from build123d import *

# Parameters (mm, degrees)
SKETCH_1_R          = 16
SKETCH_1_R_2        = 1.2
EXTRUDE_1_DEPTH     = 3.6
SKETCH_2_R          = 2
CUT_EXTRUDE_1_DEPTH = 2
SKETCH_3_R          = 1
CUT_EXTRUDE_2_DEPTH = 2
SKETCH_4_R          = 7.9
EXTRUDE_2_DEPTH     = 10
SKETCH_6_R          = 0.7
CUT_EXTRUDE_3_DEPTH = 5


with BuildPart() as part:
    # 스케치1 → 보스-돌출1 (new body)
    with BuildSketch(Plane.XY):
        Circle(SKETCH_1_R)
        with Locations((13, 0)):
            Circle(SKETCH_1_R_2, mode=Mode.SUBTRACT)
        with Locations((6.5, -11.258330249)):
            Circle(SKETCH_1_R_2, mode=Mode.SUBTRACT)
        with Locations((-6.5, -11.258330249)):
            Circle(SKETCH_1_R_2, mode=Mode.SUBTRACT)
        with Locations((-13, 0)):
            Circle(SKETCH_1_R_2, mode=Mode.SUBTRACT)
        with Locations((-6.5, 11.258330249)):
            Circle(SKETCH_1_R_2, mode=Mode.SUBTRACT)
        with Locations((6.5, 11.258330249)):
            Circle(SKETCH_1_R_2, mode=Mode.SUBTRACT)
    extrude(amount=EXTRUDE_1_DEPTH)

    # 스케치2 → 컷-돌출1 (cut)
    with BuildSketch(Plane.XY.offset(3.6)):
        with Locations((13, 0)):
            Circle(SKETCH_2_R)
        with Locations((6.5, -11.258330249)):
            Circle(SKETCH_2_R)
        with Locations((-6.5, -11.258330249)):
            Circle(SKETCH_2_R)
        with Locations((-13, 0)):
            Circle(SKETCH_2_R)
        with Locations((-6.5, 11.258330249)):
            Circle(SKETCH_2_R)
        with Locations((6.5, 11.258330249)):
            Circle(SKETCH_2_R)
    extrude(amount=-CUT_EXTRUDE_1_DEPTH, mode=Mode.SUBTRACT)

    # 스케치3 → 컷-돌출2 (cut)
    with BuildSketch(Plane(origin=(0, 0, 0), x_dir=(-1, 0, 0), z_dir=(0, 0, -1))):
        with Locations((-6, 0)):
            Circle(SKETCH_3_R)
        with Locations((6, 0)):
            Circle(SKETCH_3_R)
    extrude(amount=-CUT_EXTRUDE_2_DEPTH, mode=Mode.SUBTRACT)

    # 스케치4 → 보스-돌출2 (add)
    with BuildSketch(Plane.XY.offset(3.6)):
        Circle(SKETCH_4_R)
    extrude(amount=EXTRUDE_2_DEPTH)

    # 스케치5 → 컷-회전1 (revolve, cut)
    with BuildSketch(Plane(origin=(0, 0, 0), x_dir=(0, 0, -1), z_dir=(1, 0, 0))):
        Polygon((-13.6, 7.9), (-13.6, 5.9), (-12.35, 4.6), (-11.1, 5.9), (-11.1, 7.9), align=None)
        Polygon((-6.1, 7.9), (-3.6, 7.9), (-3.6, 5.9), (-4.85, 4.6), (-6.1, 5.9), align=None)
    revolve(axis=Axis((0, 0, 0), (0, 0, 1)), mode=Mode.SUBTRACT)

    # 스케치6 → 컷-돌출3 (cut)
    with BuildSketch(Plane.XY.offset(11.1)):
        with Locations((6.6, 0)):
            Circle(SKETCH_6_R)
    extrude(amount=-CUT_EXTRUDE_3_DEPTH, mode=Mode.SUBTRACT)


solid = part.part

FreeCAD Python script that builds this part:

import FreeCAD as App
import Part
import Sketcher

V = App.Vector


def add_polygon(sketch, points):
    """Adds a closed chain of lines whose ends are joined by coincident constraints."""
    first, n = sketch.GeometryCount, len(points)
    for a, b in zip(points, points[1:] + points[:1]):
        sketch.addGeometry(Part.LineSegment(App.Vector(*a, 0), App.Vector(*b, 0)), False)
    for i in range(n):
        sketch.addConstraint(Sketcher.Constraint("Coincident", first + i, 2, first + (i + 1) % n, 1))

doc = App.newDocument("Part")
body = doc.addObject("PartDesign::Body", "Body")

# Sketch on XY plane
sketch1 = body.newObject("Sketcher::SketchObject", "Sketch")
sketch1.AttachmentSupport = (doc.getObject("XY_Plane"), [""])
sketch1.MapMode = "FlatFace"
sketch1.addGeometry([
    Part.Circle(V(0, 0, 0), V(0, 0, 1), 16),  # 0
    Part.Circle(V(-6.5, -11.3, 0), V(0, 0, 1), 1.2),  # 1
    Part.Circle(V(6.5, -11.3, 0), V(0, 0, 1), 1.2),  # 2
    Part.Circle(V(-13, 0, 0), V(0, 0, 1), 1.2),  # 3
    Part.Circle(V(-6.5, 11.3, 0), V(0, 0, 1), 1.2),  # 4
    Part.Circle(V(13, 0, 0), V(0, 0, 1), 1.2),  # 5
    Part.Circle(V(6.5, 11.3, 0), V(0, 0, 1), 1.2),  # 6
], False)
sketch1.addConstraint([
    Sketcher.Constraint("Coincident", 0, 3, -1, 1),
    Sketcher.Constraint("Equal", 1, 2),
    Sketcher.Constraint("Equal", 2, 3),
    Sketcher.Constraint("Equal", 3, 4),
    Sketcher.Constraint("Equal", 4, 5),
    Sketcher.Constraint("Equal", 5, 6),
    Sketcher.Constraint("Symmetric", 2, 3, 4, 3, -1, 1),
    Sketcher.Constraint("Symmetric", 3, 3, 5, 3, -1, 1),
    Sketcher.Constraint("Symmetric", 1, 3, 6, 3, -1, 1),
    Sketcher.Constraint("Symmetric", 1, 3, 2, 3, -2),
    Sketcher.Constraint("PointOnObject", 3, 3, -1),
    Sketcher.Constraint("Diameter", 0, 32.0),
    Sketcher.Constraint("Diameter", 1, 2.4),
    Sketcher.Constraint("DistanceX", 3, 3, -1, 1, 13.0),
    Sketcher.Constraint("DistanceX", 1, 3, 2, 3, 13.0),
    Sketcher.Constraint("DistanceY", 1, 3, -1, 1, 11.25833),
])
pad1 = body.newObject("PartDesign::Pad", "Pad")
pad1.Profile = sketch1
pad1.Length = 3.6

# Sketch on XY plane
sketch2 = body.newObject("Sketcher::SketchObject", "Sketch001")
sketch2.AttachmentSupport = (doc.getObject("XY_Plane"), [""])
sketch2.MapMode = "FlatFace"
sketch2.AttachmentOffset = App.Placement(V(0, 0, 3.6), App.Rotation())
sketch2.addGeometry([
    Part.Circle(V(13, 0, 0), V(0, 0, 1), 2),  # 0
    Part.Circle(V(6.5, -11.3, 0), V(0, 0, 1), 2),  # 1
    Part.Circle(V(-6.5, -11.3, 0), V(0, 0, 1), 2),  # 2
    Part.Circle(V(-13, 0, 0), V(0, 0, 1), 2),  # 3
    Part.Circle(V(-6.5, 11.3, 0), V(0, 0, 1), 2),  # 4
    Part.Circle(V(6.5, 11.3, 0), V(0, 0, 1), 2),  # 5
], False)
sketch2.addConstraint([
    Sketcher.Constraint("Equal", 0, 1),
    Sketcher.Constraint("Equal", 1, 2),
    Sketcher.Constraint("Equal", 2, 3),
    Sketcher.Constraint("Equal", 3, 4),
    Sketcher.Constraint("Equal", 4, 5),
    Sketcher.Constraint("Symmetric", 0, 3, 3, 3, -1, 1),
    Sketcher.Constraint("Symmetric", 1, 3, 4, 3, -1, 1),
    Sketcher.Constraint("Symmetric", 2, 3, 5, 3, -1, 1),
    Sketcher.Constraint("Symmetric", 1, 3, 2, 3, -2),
    Sketcher.Constraint("PointOnObject", 0, 3, -1),
    Sketcher.Constraint("Diameter", 0, 4.0),
    Sketcher.Constraint("DistanceX", -1, 1, 0, 3, 13.0),
    Sketcher.Constraint("DistanceX", 2, 3, 1, 3, 13.0),
    Sketcher.Constraint("DistanceY", 1, 3, -1, 1, 11.25833),
])
pocket1 = body.newObject("PartDesign::Pocket", "Pocket")
pocket1.Profile = sketch2
pocket1.Length = 2

# Sketch on XY plane
sketch3 = body.newObject("Sketcher::SketchObject", "Sketch002")
sketch3.AttachmentSupport = (doc.getObject("XY_Plane"), [""])
sketch3.MapMode = "FlatFace"
sketch3.addGeometry([
    Part.Circle(V(6, 0, 0), V(0, 0, 1), 1),
    Part.Circle(V(-6, 0, 0), V(0, 0, 1), 1),
], False)
sketch3.addConstraint([
    Sketcher.Constraint("Equal", 0, 1),
    Sketcher.Constraint("Symmetric", 0, 3, 1, 3, -1, 1),
    Sketcher.Constraint("PointOnObject", 0, 3, -1),
    Sketcher.Constraint("Diameter", 0, 2.0),
    Sketcher.Constraint("DistanceX", -1, 1, 0, 3, 6.0),
])
pocket2 = body.newObject("PartDesign::Pocket", "Pocket001")
pocket2.Profile = sketch3
pocket2.Length = 2
pocket2.Reversed = True

# Sketch on XY plane
sketch4 = body.newObject("Sketcher::SketchObject", "Sketch003")
sketch4.AttachmentSupport = (doc.getObject("XY_Plane"), [""])
sketch4.MapMode = "FlatFace"
sketch4.AttachmentOffset = App.Placement(V(0, 0, 3.6), App.Rotation())
sketch4.addGeometry(Part.Circle(V(0, 0, 0), V(0, 0, 1), 8), False)
sketch4.addConstraint([
    Sketcher.Constraint("Coincident", 0, 3, -1, 1),
    Sketcher.Constraint("Diameter", 0, 15.8),
])
pad2 = body.newObject("PartDesign::Pad", "Pad001")
pad2.Profile = sketch4
pad2.Length = 10

# Sketch on YZ plane
sketch5 = body.newObject("Sketcher::SketchObject", "Sketch004")
sketch5.AttachmentSupport = (doc.getObject("YZ_Plane"), [""])
sketch5.MapMode = "FlatFace"
add_polygon(sketch5, [(7.9, 13.6), (5.9, 13.6), (4.6, 12.3), (5.9, 11.1), (7.9, 11.1)])  # lines 0-4
add_polygon(sketch5, [(7.9, 3.6), (7.9, 6.1), (5.9, 6.1), (4.6, 4.8), (5.9, 3.6)])  # lines 5-9
sketch5.addConstraint([
    Sketcher.Constraint("Horizontal", 0),
    Sketcher.Constraint("Horizontal", 3),
    Sketcher.Constraint("Vertical", 4),
    Sketcher.Constraint("Vertical", 5),
    Sketcher.Constraint("Horizontal", 6),
    Sketcher.Constraint("Horizontal", 9),
    Sketcher.Constraint("Parallel", 1, 7),
    Sketcher.Constraint("Parallel", 2, 8),
    Sketcher.Constraint("Vertical", 0, 2, 2, 2),
    Sketcher.Constraint("Vertical", 4, 2, 5, 2),
    Sketcher.Constraint("Vertical", 2, 2, 6, 2),
    Sketcher.Constraint("Vertical", 1, 2, 7, 2),
    Sketcher.Constraint("Vertical", 6, 2, 8, 2),
    Sketcher.Constraint("Equal", 1, 2),
    Sketcher.Constraint("DistanceX", 0, 2, 0, 1, 2.0),
    Sketcher.Constraint("DistanceY", 4, 1, 4, 2, 2.5),
    Sketcher.Constraint("DistanceY", 5, 2, 3, 2, 5.0),
    Sketcher.Constraint("DistanceX", -1, 1, 0, 2, 5.9),
    Sketcher.Constraint("DistanceY", -1, 1, 0, 2, 13.6),
    Sketcher.Constraint("DistanceX", -1, 1, 1, 2, 4.6),
])
groove = body.newObject("PartDesign::Groove", "Groove")
groove.Profile = sketch5
groove.ReferenceAxis = (sketch5, ["V_Axis"])
groove.Angle = 360

# Sketch on XY plane
sketch6 = body.newObject("Sketcher::SketchObject", "Sketch005")
sketch6.AttachmentSupport = (doc.getObject("XY_Plane"), [""])
sketch6.MapMode = "FlatFace"
sketch6.AttachmentOffset = App.Placement(V(0, 0, 11.1), App.Rotation())
sketch6.addGeometry(Part.Circle(V(6.6, 0, 0), V(0, 0, 1), 0.7), False)
sketch6.addConstraint([
    Sketcher.Constraint("PointOnObject", 0, 3, -1),
    Sketcher.Constraint("Diameter", 0, 1.4),
    Sketcher.Constraint("DistanceX", -1, 1, 0, 3, 6.6),
])
pocket3 = body.newObject("PartDesign::Pocket", "Pocket002")
pocket3.Profile = sketch6
pocket3.Length = 5

doc.recompute()
